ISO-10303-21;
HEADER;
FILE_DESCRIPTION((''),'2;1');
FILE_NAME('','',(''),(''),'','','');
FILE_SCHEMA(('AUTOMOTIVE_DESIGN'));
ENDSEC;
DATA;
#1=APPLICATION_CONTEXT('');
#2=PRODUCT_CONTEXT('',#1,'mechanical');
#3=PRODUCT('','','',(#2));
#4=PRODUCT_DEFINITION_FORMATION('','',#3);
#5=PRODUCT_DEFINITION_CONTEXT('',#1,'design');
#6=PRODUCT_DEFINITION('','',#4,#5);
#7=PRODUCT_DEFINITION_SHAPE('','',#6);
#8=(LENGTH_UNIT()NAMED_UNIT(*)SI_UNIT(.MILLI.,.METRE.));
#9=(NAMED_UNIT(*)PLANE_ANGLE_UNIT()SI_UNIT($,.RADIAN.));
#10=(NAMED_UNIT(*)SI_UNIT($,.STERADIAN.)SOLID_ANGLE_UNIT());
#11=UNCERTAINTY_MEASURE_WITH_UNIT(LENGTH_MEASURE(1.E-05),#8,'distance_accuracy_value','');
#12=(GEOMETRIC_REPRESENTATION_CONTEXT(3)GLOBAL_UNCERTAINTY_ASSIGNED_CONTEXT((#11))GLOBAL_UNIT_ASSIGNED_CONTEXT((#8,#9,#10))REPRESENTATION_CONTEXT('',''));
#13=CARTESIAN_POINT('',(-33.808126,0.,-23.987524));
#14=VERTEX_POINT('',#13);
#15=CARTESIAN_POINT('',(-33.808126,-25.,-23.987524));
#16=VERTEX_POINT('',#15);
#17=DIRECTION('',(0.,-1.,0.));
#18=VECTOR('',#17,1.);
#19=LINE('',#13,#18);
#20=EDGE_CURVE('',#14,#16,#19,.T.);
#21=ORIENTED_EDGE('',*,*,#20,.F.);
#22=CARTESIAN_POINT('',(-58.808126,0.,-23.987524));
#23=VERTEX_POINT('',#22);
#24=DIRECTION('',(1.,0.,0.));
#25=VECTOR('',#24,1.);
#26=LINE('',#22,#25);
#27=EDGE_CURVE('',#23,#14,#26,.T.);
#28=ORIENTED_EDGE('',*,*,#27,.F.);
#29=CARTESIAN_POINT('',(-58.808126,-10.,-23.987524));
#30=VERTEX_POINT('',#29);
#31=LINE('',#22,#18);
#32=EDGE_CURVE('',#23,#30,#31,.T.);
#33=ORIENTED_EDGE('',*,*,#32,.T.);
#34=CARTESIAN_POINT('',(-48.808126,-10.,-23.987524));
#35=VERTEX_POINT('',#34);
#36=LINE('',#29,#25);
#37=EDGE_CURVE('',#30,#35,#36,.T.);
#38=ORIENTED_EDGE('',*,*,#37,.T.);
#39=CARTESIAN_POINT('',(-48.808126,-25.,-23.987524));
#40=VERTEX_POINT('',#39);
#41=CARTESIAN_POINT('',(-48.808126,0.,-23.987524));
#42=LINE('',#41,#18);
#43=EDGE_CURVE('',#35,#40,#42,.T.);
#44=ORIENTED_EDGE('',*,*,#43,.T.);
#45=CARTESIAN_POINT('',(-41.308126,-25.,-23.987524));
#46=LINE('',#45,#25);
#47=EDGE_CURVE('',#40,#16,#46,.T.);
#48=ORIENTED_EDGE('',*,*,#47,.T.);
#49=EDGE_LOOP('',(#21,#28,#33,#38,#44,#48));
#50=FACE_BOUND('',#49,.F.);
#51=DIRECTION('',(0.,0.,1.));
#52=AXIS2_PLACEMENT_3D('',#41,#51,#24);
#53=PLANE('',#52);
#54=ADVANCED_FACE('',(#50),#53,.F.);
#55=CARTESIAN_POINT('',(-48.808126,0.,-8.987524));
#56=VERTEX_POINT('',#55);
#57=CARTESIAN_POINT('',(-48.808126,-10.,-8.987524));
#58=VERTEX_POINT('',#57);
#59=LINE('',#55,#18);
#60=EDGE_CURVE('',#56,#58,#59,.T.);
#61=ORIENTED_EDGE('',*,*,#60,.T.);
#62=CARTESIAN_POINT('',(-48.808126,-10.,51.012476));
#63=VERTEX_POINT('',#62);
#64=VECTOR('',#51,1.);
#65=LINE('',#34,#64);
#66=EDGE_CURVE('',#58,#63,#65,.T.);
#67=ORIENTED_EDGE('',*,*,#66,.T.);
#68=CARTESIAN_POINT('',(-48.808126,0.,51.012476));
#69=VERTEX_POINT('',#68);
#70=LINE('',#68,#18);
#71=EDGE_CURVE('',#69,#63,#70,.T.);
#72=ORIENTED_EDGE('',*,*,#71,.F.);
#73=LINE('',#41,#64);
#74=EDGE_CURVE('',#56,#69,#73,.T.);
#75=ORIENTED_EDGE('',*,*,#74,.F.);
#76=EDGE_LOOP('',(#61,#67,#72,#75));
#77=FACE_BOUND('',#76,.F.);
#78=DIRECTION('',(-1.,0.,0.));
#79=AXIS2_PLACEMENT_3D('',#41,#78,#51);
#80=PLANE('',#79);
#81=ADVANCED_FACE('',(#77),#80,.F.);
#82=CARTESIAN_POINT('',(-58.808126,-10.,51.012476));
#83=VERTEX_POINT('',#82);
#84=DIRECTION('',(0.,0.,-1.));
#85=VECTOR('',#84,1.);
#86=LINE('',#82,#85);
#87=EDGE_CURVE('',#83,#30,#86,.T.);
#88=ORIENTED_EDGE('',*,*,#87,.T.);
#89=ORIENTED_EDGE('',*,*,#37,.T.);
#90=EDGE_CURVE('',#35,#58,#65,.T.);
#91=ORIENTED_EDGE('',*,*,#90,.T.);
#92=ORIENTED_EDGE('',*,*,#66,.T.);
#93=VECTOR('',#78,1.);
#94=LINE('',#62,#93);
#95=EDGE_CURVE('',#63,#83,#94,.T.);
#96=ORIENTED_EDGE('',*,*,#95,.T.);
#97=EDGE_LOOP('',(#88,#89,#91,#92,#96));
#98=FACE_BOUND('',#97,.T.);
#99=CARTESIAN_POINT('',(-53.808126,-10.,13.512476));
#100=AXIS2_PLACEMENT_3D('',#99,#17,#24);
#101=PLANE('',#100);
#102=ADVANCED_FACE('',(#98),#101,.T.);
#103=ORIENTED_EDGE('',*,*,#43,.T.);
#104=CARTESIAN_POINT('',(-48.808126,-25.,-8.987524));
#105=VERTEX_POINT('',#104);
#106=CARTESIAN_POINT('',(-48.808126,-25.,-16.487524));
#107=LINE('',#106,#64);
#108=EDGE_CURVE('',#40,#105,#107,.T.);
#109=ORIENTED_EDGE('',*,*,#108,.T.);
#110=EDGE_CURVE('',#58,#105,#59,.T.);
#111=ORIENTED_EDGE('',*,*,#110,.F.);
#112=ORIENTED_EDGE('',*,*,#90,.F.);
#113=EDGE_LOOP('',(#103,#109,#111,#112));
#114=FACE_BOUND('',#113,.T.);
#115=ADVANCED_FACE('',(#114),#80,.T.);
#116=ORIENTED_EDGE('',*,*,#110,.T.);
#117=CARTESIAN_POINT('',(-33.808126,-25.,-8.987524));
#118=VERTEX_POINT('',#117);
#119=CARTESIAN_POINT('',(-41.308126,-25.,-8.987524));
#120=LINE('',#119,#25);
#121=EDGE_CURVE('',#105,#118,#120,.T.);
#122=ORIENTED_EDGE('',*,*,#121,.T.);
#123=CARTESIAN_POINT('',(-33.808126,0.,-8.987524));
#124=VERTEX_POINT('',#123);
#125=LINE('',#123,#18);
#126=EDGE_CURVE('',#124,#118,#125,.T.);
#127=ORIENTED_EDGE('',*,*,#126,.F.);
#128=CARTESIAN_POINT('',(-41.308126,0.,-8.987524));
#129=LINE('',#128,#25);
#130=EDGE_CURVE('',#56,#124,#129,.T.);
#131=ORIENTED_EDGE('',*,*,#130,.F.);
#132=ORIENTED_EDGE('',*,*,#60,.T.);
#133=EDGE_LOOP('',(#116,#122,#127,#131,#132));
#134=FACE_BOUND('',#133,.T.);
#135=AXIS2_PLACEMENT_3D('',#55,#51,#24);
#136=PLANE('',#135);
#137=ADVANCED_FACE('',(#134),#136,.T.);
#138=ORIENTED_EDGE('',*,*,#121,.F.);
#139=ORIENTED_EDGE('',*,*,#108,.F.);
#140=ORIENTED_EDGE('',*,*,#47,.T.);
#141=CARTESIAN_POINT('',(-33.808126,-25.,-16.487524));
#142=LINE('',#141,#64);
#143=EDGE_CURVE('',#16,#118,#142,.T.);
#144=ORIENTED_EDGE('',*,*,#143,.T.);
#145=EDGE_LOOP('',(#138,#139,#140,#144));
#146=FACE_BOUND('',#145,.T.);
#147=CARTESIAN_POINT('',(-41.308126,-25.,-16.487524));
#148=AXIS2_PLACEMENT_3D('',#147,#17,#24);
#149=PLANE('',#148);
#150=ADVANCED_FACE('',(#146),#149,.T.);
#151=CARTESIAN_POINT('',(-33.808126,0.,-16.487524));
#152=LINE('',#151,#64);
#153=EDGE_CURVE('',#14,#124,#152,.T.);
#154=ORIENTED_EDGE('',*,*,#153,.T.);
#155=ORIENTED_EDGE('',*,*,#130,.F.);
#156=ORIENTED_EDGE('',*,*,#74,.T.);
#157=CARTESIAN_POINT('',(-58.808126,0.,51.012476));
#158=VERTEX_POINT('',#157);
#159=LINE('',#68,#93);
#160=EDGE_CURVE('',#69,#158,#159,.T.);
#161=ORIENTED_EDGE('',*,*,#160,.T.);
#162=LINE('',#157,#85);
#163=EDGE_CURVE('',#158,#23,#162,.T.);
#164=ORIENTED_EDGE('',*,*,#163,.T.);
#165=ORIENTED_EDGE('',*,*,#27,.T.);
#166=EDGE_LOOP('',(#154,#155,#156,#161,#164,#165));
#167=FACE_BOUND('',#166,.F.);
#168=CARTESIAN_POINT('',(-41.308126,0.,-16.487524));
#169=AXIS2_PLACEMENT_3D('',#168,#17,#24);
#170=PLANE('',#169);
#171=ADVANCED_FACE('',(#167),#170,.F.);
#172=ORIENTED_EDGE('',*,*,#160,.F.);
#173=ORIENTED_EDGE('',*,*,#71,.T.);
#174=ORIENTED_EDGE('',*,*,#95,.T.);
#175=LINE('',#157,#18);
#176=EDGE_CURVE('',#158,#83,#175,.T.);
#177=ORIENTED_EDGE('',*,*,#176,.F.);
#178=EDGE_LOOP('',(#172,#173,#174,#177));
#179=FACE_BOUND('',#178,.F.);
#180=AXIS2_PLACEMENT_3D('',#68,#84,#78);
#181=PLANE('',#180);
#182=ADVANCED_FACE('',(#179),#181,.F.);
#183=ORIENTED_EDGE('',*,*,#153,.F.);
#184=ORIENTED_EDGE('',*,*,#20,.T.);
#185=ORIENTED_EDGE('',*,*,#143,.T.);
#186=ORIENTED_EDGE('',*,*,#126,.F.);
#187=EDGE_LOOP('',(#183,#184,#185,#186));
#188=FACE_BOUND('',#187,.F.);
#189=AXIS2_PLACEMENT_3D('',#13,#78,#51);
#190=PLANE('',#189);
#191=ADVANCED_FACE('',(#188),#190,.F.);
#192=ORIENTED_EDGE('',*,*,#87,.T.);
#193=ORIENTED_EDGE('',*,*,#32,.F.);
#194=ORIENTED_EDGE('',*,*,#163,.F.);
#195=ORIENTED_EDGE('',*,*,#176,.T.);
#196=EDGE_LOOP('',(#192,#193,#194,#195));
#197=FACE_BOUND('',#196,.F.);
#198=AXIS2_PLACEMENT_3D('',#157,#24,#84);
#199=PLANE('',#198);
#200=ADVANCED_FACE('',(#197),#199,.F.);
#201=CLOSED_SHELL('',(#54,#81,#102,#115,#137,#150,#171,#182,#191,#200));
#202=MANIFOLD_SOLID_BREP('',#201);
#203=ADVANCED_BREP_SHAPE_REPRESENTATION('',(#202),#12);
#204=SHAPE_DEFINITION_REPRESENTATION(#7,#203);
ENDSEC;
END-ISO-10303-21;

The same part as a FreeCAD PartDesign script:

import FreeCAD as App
import Part
import Sketcher
from FreeCAD import Vector

doc = App.newDocument("Part")
body = doc.addObject("PartDesign::Body", "Body")

# Sketch on XZ plane
sketch1 = doc.addObject("Sketcher::SketchObject", "Sketch")
body.addObject(sketch1)
sketch1.AttachmentSupport = (doc.XZ_Plane, [""])
sketch1.MapMode = "FlatFace"
sketch1.addGeometry(Part.LineSegment(Vector(-49, 51, 0), Vector(-59, 51, 0)), False)
sketch1.addGeometry(Part.LineSegment(Vector(-59, 51, 0), Vector(-59, -24, 0)), False)
sketch1.addGeometry(Part.LineSegment(Vector(-59, -24, 0), Vector(-49, -24, 0)), False)
sketch1.addGeometry(Part.LineSegment(Vector(-49, -24, 0), Vector(-49, 51, 0)), False)
sketch1.addConstraint(Sketcher.Constraint("Coincident", 0, 2, 1, 1))
sketch1.addConstraint(Sketcher.Constraint("Coincident", 1, 2, 2, 1))
sketch1.addConstraint(Sketcher.Constraint("Coincident", 2, 2, 3, 1))
sketch1.addConstraint(Sketcher.Constraint("Coincident", 3, 2, 0, 1))
sketch1.addConstraint(Sketcher.Constraint("Horizontal", 0))
sketch1.addConstraint(Sketcher.Constraint("Vertical", 1))
sketch1.addConstraint(Sketcher.Constraint("Horizontal", 2))
sketch1.addConstraint(Sketcher.Constraint("Vertical", 3))
sketch1.addConstraint(Sketcher.Constraint("DistanceX", 0, 2, 0, 1, 10.0))
sketch1.addConstraint(Sketcher.Constraint("DistanceY", 1, 2, 1, 1, 75.0))
sketch1.addConstraint(Sketcher.Constraint("DistanceX", 0, 2, -1, 1, 58.808126))
sketch1.addConstraint(Sketcher.Constraint("DistanceY", -1, 1, 0, 2, 51.012476))
pad1 = doc.addObject("PartDesign::Pad", "Pad")
body.addObject(pad1)
pad1.Profile = sketch1
pad1.Length = 10

# Sketch on XZ plane
sketch2 = doc.addObject("Sketcher::SketchObject", "Sketch001")
body.addObject(sketch2)
sketch2.AttachmentSupport = (doc.XZ_Plane, [""])
sketch2.MapMode = "FlatFace"
sketch2.addGeometry(Part.LineSegment(Vector(-49, -9, 0), Vector(-49, -24, 0)), False)
sketch2.addGeometry(Part.LineSegment(Vector(-49, -24, 0), Vector(-34, -24, 0)), False)
sketch2.addGeometry(Part.LineSegment(Vector(-34, -24, 0), Vector(-34, -9, 0)), False)
sketch2.addGeometry(Part.LineSegment(Vector(-34, -9, 0), Vector(-49, -9, 0)), False)
sketch2.addConstraint(Sketcher.Constraint("Coincident", 0, 2, 1, 1))
sketch2.addConstraint(Sketcher.Constraint("Coincident", 1, 2, 2, 1))
sketch2.addConstraint(Sketcher.Constraint("Coincident", 2, 2, 3, 1))
sketch2.addConstraint(Sketcher.Constraint("Coincident", 3, 2, 0, 1))
sketch2.addConstraint(Sketcher.Constraint("Vertical", 0))
sketch2.addConstraint(Sketcher.Constraint("Horizontal", 1))
sketch2.addConstraint(Sketcher.Constraint("Vertical", 2))
sketch2.addConstraint(Sketcher.Constraint("Horizontal", 3))
sketch2.addConstraint(Sketcher.Constraint("Equal", 3, 0))
sketch2.addConstraint(Sketcher.Constraint("DistanceX", 1, 1, 1, 2, 15.0))
sketch2.addConstraint(Sketcher.Constraint("DistanceX", 0, 2, -1, 1, 48.808126))
sketch2.addConstraint(Sketcher.Constraint("DistanceY", 0, 2, -1, 1, 23.987524))
pad2 = doc.addObject("PartDesign::Pad", "Pad001")
body.addObject(pad2)
pad2.Profile = sketch2
pad2.Length = 25

doc.recompute()
